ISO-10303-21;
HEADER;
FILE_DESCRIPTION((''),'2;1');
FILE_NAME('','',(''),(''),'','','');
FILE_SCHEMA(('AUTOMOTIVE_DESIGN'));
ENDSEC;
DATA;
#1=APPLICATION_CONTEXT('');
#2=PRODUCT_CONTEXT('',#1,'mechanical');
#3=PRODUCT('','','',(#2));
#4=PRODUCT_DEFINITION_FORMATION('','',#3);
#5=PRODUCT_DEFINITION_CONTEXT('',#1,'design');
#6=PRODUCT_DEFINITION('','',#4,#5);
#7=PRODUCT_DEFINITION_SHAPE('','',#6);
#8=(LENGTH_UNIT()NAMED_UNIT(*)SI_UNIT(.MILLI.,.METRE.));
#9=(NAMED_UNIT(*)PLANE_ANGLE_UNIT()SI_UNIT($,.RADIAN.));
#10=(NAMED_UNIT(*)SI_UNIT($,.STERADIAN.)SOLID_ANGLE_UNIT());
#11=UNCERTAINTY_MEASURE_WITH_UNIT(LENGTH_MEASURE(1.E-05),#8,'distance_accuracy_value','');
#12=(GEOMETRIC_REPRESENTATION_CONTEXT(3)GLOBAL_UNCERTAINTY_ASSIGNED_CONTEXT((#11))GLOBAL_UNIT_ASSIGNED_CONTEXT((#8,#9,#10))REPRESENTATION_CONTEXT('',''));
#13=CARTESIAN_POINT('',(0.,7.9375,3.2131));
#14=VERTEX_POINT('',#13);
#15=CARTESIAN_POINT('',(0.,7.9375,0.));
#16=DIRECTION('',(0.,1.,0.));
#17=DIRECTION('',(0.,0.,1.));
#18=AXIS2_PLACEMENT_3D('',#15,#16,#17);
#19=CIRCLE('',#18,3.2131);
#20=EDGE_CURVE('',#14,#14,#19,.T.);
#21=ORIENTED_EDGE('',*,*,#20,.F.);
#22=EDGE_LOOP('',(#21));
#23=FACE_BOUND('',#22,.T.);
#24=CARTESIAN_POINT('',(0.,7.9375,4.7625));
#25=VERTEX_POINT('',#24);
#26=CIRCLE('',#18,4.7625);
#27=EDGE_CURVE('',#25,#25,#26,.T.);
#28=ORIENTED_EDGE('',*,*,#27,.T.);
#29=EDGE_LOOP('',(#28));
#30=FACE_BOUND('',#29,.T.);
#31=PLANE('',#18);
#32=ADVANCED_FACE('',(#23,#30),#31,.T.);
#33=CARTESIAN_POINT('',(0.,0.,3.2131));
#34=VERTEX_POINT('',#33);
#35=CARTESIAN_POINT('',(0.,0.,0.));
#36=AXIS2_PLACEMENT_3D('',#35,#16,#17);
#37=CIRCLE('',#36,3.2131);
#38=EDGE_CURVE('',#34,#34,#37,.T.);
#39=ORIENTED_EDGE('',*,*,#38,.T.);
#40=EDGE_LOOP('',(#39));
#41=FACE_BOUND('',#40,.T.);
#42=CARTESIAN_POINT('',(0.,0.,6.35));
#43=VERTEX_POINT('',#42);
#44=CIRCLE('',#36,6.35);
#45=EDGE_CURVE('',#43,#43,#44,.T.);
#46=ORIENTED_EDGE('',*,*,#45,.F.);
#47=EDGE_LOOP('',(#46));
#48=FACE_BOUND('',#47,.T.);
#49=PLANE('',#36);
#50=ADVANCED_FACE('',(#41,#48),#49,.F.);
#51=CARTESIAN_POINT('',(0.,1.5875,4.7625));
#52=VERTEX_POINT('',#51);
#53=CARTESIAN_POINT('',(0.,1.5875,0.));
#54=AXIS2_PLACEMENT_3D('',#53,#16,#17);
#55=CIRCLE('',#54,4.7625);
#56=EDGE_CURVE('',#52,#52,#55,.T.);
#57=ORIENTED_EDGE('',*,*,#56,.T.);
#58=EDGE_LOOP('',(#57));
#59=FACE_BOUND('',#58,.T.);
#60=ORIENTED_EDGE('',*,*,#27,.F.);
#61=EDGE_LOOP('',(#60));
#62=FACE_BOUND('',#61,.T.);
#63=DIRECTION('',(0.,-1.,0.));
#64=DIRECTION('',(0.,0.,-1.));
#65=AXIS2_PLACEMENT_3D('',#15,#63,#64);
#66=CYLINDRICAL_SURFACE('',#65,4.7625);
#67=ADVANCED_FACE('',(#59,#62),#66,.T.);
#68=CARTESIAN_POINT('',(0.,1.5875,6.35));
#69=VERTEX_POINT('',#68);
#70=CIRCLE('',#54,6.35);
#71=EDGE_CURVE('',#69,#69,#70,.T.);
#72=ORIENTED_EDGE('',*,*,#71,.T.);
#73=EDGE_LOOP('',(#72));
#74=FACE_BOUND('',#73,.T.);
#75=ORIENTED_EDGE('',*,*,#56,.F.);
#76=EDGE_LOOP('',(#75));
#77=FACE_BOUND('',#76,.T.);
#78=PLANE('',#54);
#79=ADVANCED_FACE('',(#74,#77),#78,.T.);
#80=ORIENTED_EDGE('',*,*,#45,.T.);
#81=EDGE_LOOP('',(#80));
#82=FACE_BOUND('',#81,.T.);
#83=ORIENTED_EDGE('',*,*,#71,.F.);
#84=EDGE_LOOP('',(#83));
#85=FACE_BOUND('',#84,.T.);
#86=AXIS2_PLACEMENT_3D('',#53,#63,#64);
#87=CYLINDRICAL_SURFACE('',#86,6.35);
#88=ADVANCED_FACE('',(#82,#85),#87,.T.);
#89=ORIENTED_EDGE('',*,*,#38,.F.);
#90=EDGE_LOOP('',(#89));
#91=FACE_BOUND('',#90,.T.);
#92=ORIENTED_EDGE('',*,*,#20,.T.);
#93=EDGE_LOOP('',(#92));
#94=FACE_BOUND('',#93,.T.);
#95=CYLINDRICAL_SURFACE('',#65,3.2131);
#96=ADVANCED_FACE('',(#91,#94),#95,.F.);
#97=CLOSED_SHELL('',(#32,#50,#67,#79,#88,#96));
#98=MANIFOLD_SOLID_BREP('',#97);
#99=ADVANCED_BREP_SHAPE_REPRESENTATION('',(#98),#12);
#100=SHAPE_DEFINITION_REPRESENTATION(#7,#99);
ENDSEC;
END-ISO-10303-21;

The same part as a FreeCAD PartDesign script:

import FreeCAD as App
import Part
import Sketcher

V = App.Vector
Q = App.Units.Quantity

doc = App.newDocument("Part")
params = doc.addObject("Spreadsheet::Sheet", "Params")
for row, (alias, value) in enumerate([
    ("sketch1_diameter", "0.375 in"),
    ("sketch1_diameter2", "0.253 in"),
    ("pad1_length", "0.3125 in"),
    ("sketch2_diameter", "0.5 in"),
    ("sketch2_diameter2", "0.375 in"),
    ("pad2_length", "0.0625 in"),
], start=1):
    params.set(f"A{row}", alias)
    params.set(f"B{row}", "=" + value)
    params.setAlias(f"B{row}", alias)

body = doc.addObject("PartDesign::Body", "Body")

sketch1 = doc.addObject("Sketcher::SketchObject", "Sketch")
body.addObject(sketch1)
sketch1.AttachmentSupport = (doc.XZ_Plane, [""])
sketch1.MapMode = "FlatFace"
sketch1.addGeometry(Part.Circle(V(0, 0, 0), V(0, 0, 1), 4.8), False)
sketch1.addGeometry(Part.Circle(V(0, 0, 0), V(0, 0, 1), 3.2), False)
sketch1.addConstraint(Sketcher.Constraint("Coincident", 0, 3, -1, 1))
sketch1.addConstraint(Sketcher.Constraint("Coincident", 1, 3, -1, 1))
sketch1.addConstraint(Sketcher.Constraint("Diameter", 0, Q("0.375 in")))
sketch1.addConstraint(Sketcher.Constraint("Diameter", 1, Q("0.253 in")))
sketch1.setExpression("Constraints[2]", "Params.sketch1_diameter")
sketch1.setExpression("Constraints[3]", "Params.sketch1_diameter2")
pad1 = doc.addObject("PartDesign::Pad", "Pad")
body.addObject(pad1)
pad1.Profile = sketch1
pad1.setExpression("Length", "Params.pad1_length")
pad1.Reversed = True

sketch2 = doc.addObject("Sketcher::SketchObject", "Sketch001")
body.addObject(sketch2)
sketch2.AttachmentSupport = (doc.XZ_Plane, [""])
sketch2.MapMode = "FlatFace"
sketch2.addGeometry(Part.Circle(V(0, 0, 0), V(0, 0, 1), 6.3), False)
sketch2.addGeometry(Part.Circle(V(0, 0, 0), V(0, 0, 1), 4.8), False)
sketch2.addConstraint(Sketcher.Constraint("Coincident", 0, 3, -1, 1))
sketch2.addConstraint(Sketcher.Constraint("Coincident", 1, 3, -1, 1))
sketch2.addConstraint(Sketcher.Constraint("Diameter", 0, Q("0.5 in")))
sketch2.addConstraint(Sketcher.Constraint("Diameter", 1, Q("0.375 in")))
sketch2.setExpression("Constraints[2]", "Params.sketch2_diameter")
sketch2.setExpression("Constraints[3]", "Params.sketch2_diameter2")
pad2 = doc.addObject("PartDesign::Pad", "Pad001")
body.addObject(pad2)
pad2.Profile = sketch2
pad2.setExpression("Length", "Params.pad2_length")
pad2.Reversed = True

doc.recompute()
